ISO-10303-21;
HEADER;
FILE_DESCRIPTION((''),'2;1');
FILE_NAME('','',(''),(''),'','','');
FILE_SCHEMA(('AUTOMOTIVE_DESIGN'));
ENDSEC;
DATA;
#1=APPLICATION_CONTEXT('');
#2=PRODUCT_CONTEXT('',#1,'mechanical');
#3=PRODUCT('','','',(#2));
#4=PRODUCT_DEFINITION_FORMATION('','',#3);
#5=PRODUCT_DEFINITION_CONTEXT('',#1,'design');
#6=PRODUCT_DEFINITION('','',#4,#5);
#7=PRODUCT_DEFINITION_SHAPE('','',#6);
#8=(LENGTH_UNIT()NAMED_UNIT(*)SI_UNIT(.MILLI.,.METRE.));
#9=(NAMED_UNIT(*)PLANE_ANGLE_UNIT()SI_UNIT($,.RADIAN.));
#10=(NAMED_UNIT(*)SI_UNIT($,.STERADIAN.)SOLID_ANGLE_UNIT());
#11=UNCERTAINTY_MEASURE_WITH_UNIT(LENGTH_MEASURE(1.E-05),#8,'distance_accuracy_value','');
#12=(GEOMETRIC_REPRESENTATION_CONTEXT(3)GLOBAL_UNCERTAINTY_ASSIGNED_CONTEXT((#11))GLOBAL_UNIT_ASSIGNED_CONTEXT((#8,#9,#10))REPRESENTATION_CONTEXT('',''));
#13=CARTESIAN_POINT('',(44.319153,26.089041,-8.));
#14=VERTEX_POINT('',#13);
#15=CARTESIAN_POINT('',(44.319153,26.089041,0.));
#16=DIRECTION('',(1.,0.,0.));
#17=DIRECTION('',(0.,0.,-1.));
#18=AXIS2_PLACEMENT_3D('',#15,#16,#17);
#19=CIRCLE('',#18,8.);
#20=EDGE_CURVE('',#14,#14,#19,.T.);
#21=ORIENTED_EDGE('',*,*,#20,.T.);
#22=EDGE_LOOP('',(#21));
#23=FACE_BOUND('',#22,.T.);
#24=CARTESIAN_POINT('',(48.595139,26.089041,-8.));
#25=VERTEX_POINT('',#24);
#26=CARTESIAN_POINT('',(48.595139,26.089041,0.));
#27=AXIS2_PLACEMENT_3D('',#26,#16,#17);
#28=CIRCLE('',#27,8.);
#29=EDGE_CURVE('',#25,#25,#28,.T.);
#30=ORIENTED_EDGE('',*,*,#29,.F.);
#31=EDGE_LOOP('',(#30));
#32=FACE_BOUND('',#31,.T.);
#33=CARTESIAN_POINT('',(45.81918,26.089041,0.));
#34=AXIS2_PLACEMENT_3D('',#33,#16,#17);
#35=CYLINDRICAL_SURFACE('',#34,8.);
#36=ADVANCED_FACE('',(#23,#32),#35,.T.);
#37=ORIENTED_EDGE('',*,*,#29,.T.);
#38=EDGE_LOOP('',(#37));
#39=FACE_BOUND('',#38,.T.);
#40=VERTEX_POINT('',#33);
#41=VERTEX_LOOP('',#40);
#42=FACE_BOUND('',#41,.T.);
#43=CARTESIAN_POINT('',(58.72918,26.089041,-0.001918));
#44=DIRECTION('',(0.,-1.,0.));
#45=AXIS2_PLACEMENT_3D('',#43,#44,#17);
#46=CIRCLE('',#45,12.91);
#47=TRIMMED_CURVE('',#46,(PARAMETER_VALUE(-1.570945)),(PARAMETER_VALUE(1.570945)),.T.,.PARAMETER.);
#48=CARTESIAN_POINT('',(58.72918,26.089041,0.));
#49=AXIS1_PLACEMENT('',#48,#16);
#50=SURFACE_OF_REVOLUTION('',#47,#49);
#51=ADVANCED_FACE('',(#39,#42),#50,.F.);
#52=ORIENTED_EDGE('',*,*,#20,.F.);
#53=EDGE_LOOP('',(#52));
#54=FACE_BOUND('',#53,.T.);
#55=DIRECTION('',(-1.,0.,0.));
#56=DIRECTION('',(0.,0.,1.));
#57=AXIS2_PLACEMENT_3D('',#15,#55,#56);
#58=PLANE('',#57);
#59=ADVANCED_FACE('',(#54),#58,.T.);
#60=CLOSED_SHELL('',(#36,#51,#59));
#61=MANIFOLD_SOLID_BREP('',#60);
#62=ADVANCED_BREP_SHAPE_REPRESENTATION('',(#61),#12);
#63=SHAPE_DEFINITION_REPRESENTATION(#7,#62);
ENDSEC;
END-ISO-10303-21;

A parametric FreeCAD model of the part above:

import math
import FreeCAD as App
import Part
import Sketcher
Q = App.Units.Quantity

doc = App.newDocument("Part")
params = doc.addObject("Spreadsheet::Sheet", "Params")
for row, (alias, value) in enumerate([
    ("sketch1_height", "8 mm"),
    ("sketch1_radius", "12.91 mm"),
    ("revolution_angle", "360 deg"),
], start=1):
    params.set(f"A{row}", alias)
    params.set(f"B{row}", "=" + value)
    params.setAlias(f"B{row}", alias)

body = doc.addObject("PartDesign::Body", "Body")

# Sketch on XY plane
sketch1 = body.newObject("Sketcher::SketchObject", "Sketch")
sketch1.AttachmentSupport = (doc.getObject("XY_Plane"), [""])
sketch1.MapMode = "FlatFace"
sketch1.addGeometry(Part.LineSegment(App.Vector(44.3, 34.1, 0), App.Vector(44.3, 26.1, 0)), False)
sketch1.addGeometry(Part.LineSegment(App.Vector(44.3, 26.1, 0), App.Vector(45.8, 26.1, 0)), False)
sketch1.addGeometry(Part.ArcOfCircle(Part.Circle(App.Vector(58.7, 26.1, 0), App.Vector(0, 0, 1), 12.9), math.radians(142), math.radians(180)), False)
sketch1.addGeometry(Part.LineSegment(App.Vector(48.6, 34.1, 0), App.Vector(44.3, 34.1, 0)), False)
sketch1.addGeometry(Part.LineSegment(App.Vector(58.7, 26.1, 0), App.Vector(44.3, 26.1, 0)), True)  # axis
sketch1.addConstraint(Sketcher.Constraint("Coincident", 0, 2, 1, 1))
sketch1.addConstraint(Sketcher.Constraint("Coincident", 1, 2, 2, 2))
sketch1.addConstraint(Sketcher.Constraint("Coincident", 2, 1, 3, 1))
sketch1.addConstraint(Sketcher.Constraint("Coincident", 3, 2, 0, 1))
sketch1.addConstraint(Sketcher.Constraint("Vertical", 0))
sketch1.addConstraint(Sketcher.Constraint("Horizontal", 1))
sketch1.addConstraint(Sketcher.Constraint("Horizontal", 3))
sketch1.addConstraint(Sketcher.Constraint("Horizontal", 4))
sketch1.addConstraint(Sketcher.Constraint("Coincident", 4, 2, 0, 2))
sketch1.addConstraint(Sketcher.Constraint("Vertical", 2, 3, 4, 1))
sketch1.addConstraint(Sketcher.Constraint("DistanceY", 0, 2, 0, 1, Q("8 mm")))
sketch1.addConstraint(Sketcher.Constraint("Radius", 2, Q("12.91 mm")))
sketch1.addConstraint(Sketcher.Constraint("DistanceX", 1, 1, 1, 2, Q("1.500028 mm")))
sketch1.addConstraint(Sketcher.Constraint("DistanceX", 3, 2, 3, 1, Q("4.275986 mm")))
sketch1.addConstraint(Sketcher.Constraint("DistanceX", -1, 1, 2, 3, Q("58.72918 mm")))
sketch1.addConstraint(Sketcher.Constraint("DistanceY", -1, 1, 2, 3, Q("26.09096 mm")))
sketch1.setExpression("Constraints[10]", "Params.sketch1_height")
sketch1.setExpression("Constraints[11]", "Params.sketch1_radius")
revolution = body.newObject("PartDesign::Revolution", "Revolution")
revolution.Profile = sketch1
revolution.ReferenceAxis = (sketch1, ["Axis0"])
revolution.setExpression("Angle", "Params.revolution_angle")

doc.recompute()
